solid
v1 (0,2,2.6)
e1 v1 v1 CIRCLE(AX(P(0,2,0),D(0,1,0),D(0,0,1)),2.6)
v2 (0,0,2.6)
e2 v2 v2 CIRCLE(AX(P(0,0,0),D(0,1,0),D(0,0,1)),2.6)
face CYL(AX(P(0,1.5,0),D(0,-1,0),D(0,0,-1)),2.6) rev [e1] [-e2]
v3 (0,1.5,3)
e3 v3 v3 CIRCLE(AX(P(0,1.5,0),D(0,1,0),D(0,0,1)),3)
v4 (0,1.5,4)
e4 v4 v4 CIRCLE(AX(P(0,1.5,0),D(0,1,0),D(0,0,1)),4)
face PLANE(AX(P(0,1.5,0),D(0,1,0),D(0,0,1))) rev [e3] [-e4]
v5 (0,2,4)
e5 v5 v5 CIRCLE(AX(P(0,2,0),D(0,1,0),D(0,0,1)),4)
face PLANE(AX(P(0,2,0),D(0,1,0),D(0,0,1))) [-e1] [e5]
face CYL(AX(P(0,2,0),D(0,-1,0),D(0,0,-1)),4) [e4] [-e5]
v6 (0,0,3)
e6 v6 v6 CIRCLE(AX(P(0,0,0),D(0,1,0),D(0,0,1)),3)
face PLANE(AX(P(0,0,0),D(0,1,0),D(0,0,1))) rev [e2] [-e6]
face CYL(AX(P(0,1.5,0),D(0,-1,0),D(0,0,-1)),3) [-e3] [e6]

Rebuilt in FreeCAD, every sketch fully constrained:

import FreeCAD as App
import Part
import Sketcher

doc = App.newDocument("Part")
body = doc.addObject("PartDesign::Body", "Body")

sketch1 = body.newObject("Sketcher::SketchObject", "Sketch")
sketch1.AttachmentSupport = (doc.getObject("XZ_Plane"), [""])
sketch1.MapMode = "FlatFace"
sketch1.addGeometry([
    Part.Circle(App.Vector(0, 0, 0), App.Vector(0, 0, 1), 3),
    Part.Circle(App.Vector(0, 0, 0), App.Vector(0, 0, 1), 2.6),
], False)
sketch1.addConstraint([
    Sketcher.Constraint("Coincident", 0, 3, -1, 1),
    Sketcher.Constraint("Coincident", 1, 3, -1, 1),
    Sketcher.Constraint("Diameter", 0, 6.0),
    Sketcher.Constraint("Diameter", 1, 5.2),
])
pad1 = body.newObject("PartDesign::Pad", "Pad")
pad1.Profile = sketch1
pad1.Length = 1.5
pad1.Reversed = True

sketch2 = body.newObject("Sketcher::SketchObject", "Sketch001")
sketch2.AttachmentSupport = (doc.getObject("XZ_Plane"), [""])
sketch2.MapMode = "FlatFace"
sketch2.AttachmentOffset = App.Placement(App.Vector(0, 0, -1.5), App.Rotation())
sketch2.addGeometry([
    Part.Circle(App.Vector(0, 0, 0), App.Vector(0, 0, 1), 4),
    Part.Circle(App.Vector(0, 0, 0), App.Vector(0, 0, 1), 2.6),
], False)
sketch2.addConstraint([
    Sketcher.Constraint("Coincident", 0, 3, -1, 1),
    Sketcher.Constraint("Coincident", 1, 3, -1, 1),
    Sketcher.Constraint("Diameter", 0, 8.0),
    Sketcher.Constraint("Diameter", 1, 5.2),
])
pad2 = body.newObject("PartDesign::Pad", "Pad001")
pad2.Profile = sketch2
pad2.Length = 0.5
pad2.Reversed = True

doc.recompute()
